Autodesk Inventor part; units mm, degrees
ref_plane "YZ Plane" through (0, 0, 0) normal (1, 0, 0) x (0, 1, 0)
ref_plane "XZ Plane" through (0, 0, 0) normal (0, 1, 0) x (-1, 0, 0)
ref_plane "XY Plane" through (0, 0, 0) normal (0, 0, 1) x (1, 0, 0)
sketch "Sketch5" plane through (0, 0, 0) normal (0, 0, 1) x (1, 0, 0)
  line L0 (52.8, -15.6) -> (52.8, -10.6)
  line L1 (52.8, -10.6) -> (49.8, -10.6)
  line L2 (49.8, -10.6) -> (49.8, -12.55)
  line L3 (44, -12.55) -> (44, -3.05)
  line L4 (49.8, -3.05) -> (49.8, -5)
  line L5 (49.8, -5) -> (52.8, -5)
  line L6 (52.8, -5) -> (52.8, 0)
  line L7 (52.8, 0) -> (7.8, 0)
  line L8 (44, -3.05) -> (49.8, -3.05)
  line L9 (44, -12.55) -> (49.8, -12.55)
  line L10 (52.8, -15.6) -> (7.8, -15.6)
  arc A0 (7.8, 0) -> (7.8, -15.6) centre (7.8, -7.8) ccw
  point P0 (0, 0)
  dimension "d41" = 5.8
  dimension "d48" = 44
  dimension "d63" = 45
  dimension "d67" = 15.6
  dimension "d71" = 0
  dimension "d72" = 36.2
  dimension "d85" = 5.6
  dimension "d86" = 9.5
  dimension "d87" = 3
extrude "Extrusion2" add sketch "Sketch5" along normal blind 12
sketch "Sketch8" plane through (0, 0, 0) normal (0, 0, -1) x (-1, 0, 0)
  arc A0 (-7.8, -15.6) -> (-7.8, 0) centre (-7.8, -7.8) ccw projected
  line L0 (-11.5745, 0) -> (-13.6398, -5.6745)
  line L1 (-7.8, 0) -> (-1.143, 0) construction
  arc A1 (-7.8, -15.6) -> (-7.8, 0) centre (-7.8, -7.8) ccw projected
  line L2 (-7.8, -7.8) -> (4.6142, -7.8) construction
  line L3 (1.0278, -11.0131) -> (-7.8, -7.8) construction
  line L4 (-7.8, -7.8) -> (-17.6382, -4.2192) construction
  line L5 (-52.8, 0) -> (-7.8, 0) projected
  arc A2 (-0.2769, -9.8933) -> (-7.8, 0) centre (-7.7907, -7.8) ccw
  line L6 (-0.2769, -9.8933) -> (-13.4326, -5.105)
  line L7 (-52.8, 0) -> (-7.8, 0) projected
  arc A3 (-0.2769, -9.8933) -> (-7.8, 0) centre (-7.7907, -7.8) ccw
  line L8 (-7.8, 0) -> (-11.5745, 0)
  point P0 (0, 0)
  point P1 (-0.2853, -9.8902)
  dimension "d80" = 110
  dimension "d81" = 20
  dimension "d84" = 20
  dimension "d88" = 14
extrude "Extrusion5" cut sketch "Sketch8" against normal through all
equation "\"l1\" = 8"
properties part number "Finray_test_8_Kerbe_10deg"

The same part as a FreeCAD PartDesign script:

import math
import FreeCAD as App
import Part
import Sketcher
Q = App.Units.Quantity

doc = App.newDocument("Part")
body = doc.addObject("PartDesign::Body", "Body")

sketch1 = body.newObject("Sketcher::SketchObject", "Sketch")
sketch1.AttachmentSupport = (doc.getObject("XY_Plane"), [""])
sketch1.MapMode = "FlatFace"
sketch1.addGeometry([
    Part.LineSegment(App.Vector(7.8, -15.6, 0), App.Vector(52.8, -15.6, 0)),
    Part.LineSegment(App.Vector(52.8, -15.6, 0), App.Vector(52.8, -10.6, 0)),
    Part.LineSegment(App.Vector(52.8, -10.6, 0), App.Vector(49.8, -10.6, 0)),
    Part.LineSegment(App.Vector(49.8, -10.6, 0), App.Vector(49.8, -12.6, 0)),
    Part.LineSegment(App.Vector(49.8, -12.6, 0), App.Vector(44, -12.6, 0)),
    Part.LineSegment(App.Vector(44, -12.6, 0), App.Vector(44, -3, 0)),
    Part.LineSegment(App.Vector(44, -3, 0), App.Vector(49.8, -3, 0)),
    Part.LineSegment(App.Vector(49.8, -3, 0), App.Vector(49.8, -5, 0)),
    Part.LineSegment(App.Vector(49.8, -5, 0), App.Vector(52.8, -5, 0)),
    Part.LineSegment(App.Vector(52.8, -5, 0), App.Vector(52.8, 0, 0)),
    Part.LineSegment(App.Vector(52.8, 0, 0), App.Vector(7.8, 0, 0)),
    Part.ArcOfCircle(Part.Circle(App.Vector(7.8, -7.8, 0), App.Vector(0, 0, 1), 7.8), math.radians(90), math.radians(270)),
], False)
sketch1.addConstraint([
    Sketcher.Constraint("Coincident", 0, 2, 1, 1),
    Sketcher.Constraint("Coincident", 1, 2, 2, 1),
    Sketcher.Constraint("Coincident", 2, 2, 3, 1),
    Sketcher.Constraint("Coincident", 3, 2, 4, 1),
    Sketcher.Constraint("Coincident", 4, 2, 5, 1),
    Sketcher.Constraint("Coincident", 5, 2, 6, 1),
    Sketcher.Constraint("Coincident", 6, 2, 7, 1),
    Sketcher.Constraint("Coincident", 7, 2, 8, 1),
    Sketcher.Constraint("Coincident", 8, 2, 9, 1),
    Sketcher.Constraint("Coincident", 9, 2, 10, 1),
    Sketcher.Constraint("Tangent", 10, 2, 11, 1),
    Sketcher.Constraint("Tangent", 11, 2, 0, 1),
    Sketcher.Constraint("Horizontal", 0),
    Sketcher.Constraint("Vertical", 1),
    Sketcher.Constraint("Horizontal", 2),
    Sketcher.Constraint("Vertical", 3),
    Sketcher.Constraint("Horizontal", 4),
    Sketcher.Constraint("Vertical", 5),
    Sketcher.Constraint("Horizontal", 6),
    Sketcher.Constraint("Vertical", 7),
    Sketcher.Constraint("Horizontal", 8),
    Sketcher.Constraint("Vertical", 9),
    Sketcher.Constraint("Horizontal", 10),
    Sketcher.Constraint("PointOnObject", 9, 2, -1),
    Sketcher.Constraint("Vertical", 3, 2, 6, 2),
    Sketcher.Constraint("Vertical", 1, 2, 8, 2),
    Sketcher.Constraint("Equal", 3, 7),
    Sketcher.Constraint("Equal", 1, 9),
    Sketcher.Constraint("Radius", 11, Q("7.8 mm")),
    Sketcher.Constraint("DistanceX", 0, 1, 0, 2, Q("45 mm")),
    Sketcher.Constraint("DistanceX", 2, 2, 2, 1, Q("3 mm")),
    Sketcher.Constraint("DistanceX", 4, 2, 4, 1, Q("5.8 mm")),
    Sketcher.Constraint("DistanceY", 5, 1, 5, 2, Q("9.5 mm")),
    Sketcher.Constraint("DistanceX", -1, 1, 4, 2, Q("44 mm")),
    Sketcher.Constraint("DistanceY", 2, 2, 7, 2, Q("5.6 mm")),
])
pad1 = body.newObject("PartDesign::Pad", "Pad")
pad1.Profile = sketch1
pad1.Length = 12

sketch2 = body.newObject("Sketcher::SketchObject", "Sketch001")
sketch2.AttachmentSupport = (doc.getObject("XY_Plane"), [""])
sketch2.MapMode = "FlatFace"
sketch2.addGeometry([
    Part.LineSegment(App.Vector(13.4, -5.1, 0), App.Vector(0.3, -9.9, 0)),
    Part.ArcOfCircle(Part.Circle(App.Vector(7.8, -7.8, 0), App.Vector(0, 0, 1), 7.8), math.radians(90), math.radians(196)),
    Part.LineSegment(App.Vector(7.8, 0, 0), App.Vector(11.6, 0, 0)),
    Part.LineSegment(App.Vector(11.6, 0, 0), App.Vector(13.4, -5.1, 0)),
], False)
sketch2.addConstraint([
    Sketcher.Constraint("Coincident", 0, 2, 1, 2),
    Sketcher.Constraint("Coincident", 1, 1, 2, 1),
    Sketcher.Constraint("Coincident", 2, 2, 3, 1),
    Sketcher.Constraint("Coincident", 3, 2, 0, 1),
    Sketcher.Constraint("Horizontal", 2),
    Sketcher.Constraint("PointOnObject", 1, 1, -1),
    Sketcher.Constraint("Perpendicular", 0, 3),
    Sketcher.Constraint("Distance", 0, Q("14 mm")),
    Sketcher.Constraint("Radius", 1, Q("7.8 mm")),
    Sketcher.Constraint("Angle", 0, Q("-160 deg")),
    Sketcher.Constraint("DistanceX", -1, 1, 1, 1, Q("7.8 mm")),
    Sketcher.Constraint("DistanceX", 2, 1, 2, 2, Q("3.7745 mm")),
    Sketcher.Constraint("DistanceX", -1, 1, 0, 2, Q("0.277 mm")),
])
pocket1 = body.newObject("PartDesign::Pocket", "Pocket")
pocket1.Profile = sketch2
pocket1.Type = "ThroughAll"
pocket1.Reversed = True

doc.recompute()
